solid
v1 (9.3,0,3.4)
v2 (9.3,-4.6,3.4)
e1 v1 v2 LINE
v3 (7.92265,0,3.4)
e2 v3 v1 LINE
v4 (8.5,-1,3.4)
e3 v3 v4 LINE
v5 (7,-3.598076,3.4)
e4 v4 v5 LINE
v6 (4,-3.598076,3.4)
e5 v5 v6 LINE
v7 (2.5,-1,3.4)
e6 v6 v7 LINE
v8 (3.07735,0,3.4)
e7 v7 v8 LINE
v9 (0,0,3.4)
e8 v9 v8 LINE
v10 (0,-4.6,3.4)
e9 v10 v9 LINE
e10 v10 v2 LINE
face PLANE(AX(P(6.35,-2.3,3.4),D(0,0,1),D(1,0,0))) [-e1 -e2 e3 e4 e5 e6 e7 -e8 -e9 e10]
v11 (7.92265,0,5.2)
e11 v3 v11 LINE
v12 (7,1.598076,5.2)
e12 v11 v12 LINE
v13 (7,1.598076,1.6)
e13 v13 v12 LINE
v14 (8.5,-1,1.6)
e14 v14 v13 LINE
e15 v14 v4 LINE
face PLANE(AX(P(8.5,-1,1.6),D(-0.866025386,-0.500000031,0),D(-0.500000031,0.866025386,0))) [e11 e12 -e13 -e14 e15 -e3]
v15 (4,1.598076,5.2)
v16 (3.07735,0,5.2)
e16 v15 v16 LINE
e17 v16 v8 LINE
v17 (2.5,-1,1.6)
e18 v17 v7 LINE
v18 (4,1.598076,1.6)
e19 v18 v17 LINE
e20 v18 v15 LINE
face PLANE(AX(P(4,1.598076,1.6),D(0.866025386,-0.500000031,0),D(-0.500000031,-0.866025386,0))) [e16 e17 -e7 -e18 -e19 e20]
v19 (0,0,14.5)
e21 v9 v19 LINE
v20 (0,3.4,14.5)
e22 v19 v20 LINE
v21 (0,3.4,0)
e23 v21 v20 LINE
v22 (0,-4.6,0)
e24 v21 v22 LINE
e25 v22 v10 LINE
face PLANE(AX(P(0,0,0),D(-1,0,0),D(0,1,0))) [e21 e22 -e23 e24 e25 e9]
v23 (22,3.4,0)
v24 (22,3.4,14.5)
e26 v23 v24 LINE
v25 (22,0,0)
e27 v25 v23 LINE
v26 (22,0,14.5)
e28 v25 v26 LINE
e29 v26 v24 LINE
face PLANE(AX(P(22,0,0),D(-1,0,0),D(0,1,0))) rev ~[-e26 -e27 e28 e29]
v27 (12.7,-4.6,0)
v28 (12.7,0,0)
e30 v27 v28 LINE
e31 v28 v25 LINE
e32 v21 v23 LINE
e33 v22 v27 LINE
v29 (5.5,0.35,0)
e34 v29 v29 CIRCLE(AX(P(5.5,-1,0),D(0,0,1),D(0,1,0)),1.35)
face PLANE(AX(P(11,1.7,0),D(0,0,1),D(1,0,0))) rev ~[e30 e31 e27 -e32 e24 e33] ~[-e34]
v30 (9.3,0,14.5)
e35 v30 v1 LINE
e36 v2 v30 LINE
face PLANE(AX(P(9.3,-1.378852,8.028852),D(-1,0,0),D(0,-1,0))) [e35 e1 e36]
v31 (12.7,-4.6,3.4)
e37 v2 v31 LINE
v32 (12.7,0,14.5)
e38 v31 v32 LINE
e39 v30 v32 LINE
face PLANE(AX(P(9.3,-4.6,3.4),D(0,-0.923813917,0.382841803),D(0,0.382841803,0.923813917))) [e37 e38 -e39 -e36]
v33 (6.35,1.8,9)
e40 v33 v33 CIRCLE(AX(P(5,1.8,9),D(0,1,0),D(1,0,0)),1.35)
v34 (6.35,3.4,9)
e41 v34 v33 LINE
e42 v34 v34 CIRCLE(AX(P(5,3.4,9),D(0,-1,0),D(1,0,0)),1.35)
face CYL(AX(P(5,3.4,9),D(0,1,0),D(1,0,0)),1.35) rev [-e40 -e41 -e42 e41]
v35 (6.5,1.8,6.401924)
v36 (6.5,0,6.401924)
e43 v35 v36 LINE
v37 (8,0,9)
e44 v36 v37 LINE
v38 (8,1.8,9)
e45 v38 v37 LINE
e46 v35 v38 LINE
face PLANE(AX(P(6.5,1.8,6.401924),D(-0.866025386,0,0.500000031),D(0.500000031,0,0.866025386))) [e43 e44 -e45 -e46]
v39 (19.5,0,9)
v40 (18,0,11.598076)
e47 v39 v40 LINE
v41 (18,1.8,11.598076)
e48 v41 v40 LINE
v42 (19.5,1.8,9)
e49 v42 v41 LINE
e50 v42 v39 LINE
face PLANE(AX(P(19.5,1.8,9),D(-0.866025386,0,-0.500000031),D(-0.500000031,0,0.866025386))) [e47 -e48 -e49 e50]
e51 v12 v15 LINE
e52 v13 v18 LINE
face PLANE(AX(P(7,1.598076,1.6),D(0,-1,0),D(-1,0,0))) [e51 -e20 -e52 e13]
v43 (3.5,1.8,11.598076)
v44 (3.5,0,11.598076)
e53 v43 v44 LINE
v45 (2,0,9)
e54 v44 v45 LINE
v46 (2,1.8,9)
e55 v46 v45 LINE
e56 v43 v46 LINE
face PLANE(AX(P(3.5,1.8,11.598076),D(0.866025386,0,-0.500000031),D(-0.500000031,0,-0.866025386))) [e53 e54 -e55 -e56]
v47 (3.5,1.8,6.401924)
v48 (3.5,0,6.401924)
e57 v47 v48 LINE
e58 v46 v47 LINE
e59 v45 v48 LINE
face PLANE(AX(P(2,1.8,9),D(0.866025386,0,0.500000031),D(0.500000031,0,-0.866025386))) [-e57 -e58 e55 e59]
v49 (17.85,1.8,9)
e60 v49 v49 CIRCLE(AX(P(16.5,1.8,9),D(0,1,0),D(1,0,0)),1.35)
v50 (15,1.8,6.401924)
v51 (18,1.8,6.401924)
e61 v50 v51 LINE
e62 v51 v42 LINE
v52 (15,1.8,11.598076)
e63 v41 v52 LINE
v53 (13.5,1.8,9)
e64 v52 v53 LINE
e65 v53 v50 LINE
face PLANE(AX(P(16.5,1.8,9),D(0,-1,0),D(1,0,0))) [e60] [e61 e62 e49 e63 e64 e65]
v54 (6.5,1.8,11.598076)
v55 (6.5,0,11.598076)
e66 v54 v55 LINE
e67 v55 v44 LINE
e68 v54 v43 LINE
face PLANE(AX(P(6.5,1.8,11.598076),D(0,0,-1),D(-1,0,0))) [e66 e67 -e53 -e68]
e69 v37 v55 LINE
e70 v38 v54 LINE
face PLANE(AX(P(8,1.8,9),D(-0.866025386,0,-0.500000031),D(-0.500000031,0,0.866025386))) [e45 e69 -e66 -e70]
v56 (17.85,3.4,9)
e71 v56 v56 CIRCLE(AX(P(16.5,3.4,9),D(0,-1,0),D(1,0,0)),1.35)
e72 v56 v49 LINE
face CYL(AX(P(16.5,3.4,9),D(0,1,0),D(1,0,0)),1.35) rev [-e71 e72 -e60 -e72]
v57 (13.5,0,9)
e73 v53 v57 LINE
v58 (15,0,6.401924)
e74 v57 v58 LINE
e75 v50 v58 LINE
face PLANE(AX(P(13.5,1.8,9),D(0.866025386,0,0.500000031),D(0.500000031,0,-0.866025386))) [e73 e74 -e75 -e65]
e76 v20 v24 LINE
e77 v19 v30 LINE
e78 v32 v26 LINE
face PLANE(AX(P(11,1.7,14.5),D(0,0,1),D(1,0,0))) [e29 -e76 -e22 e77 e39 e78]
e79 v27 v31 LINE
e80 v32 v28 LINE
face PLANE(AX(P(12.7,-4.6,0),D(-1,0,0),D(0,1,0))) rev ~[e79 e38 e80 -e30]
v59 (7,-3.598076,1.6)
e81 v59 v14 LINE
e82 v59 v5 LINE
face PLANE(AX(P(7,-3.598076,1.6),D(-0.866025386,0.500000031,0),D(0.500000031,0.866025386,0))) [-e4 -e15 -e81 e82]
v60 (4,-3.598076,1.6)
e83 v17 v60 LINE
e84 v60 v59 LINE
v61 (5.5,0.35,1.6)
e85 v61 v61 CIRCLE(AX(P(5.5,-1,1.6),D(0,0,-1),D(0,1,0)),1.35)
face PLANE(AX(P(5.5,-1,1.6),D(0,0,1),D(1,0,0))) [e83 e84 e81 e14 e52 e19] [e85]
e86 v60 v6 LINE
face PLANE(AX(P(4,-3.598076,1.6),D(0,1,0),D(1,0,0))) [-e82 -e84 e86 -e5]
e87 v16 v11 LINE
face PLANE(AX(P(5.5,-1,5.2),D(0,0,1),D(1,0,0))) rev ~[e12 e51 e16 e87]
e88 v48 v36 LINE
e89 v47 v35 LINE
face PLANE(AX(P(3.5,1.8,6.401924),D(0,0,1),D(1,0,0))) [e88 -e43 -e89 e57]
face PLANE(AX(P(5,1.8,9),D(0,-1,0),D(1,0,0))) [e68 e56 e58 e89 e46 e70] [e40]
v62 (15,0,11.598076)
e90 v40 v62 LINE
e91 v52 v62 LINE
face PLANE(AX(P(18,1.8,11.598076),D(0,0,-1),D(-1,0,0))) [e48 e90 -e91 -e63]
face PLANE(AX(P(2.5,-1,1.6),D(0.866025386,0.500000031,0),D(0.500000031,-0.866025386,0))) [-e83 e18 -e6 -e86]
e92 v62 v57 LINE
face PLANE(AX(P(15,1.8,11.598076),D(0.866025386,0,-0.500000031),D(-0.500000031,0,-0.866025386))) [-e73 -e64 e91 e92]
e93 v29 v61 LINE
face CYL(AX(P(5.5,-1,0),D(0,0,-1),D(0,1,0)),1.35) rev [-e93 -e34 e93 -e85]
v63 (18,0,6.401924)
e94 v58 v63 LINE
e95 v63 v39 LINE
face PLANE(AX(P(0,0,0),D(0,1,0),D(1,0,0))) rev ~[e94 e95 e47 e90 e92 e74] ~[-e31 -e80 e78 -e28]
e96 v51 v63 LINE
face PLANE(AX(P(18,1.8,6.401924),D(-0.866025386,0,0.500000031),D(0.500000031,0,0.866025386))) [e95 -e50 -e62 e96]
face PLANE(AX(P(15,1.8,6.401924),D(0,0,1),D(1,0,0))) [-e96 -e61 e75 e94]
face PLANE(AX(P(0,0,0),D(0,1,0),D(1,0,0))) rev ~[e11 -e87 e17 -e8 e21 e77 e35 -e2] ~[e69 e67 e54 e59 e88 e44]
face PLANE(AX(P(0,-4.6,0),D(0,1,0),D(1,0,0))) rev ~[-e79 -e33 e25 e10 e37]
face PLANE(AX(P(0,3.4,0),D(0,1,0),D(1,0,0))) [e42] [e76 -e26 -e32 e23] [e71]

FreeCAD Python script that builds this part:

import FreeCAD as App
import Part
import Sketcher

V = App.Vector
Q = App.Units.Quantity


def add_polygon(sketch, points):
    """Adds a closed chain of lines whose ends are joined by coincident constraints."""
    first, n = sketch.GeometryCount, len(points)
    for a, b in zip(points, points[1:] + points[:1]):
        sketch.addGeometry(Part.LineSegment(App.Vector(*a, 0), App.Vector(*b, 0)), False)
    for i in range(n):
        sketch.addConstraint(Sketcher.Constraint("Coincident", first + i, 2, first + (i + 1) % n, 1))

doc = App.newDocument("Part")
params = doc.addObject("Spreadsheet::Sheet", "Params")
for row, (alias, value) in enumerate([
    ("sketch1_width", "3 mm"),
    ("sketch1_length", "3 mm"),
    ("pad1_length", "3.6 mm"),
    ("sketch2_diameter", "2.7 mm"),
    ("pad2_length", "3.4 mm"),
    ("sketch3_width", "3 mm"),
    ("sketch3_length", "3 mm"),
    ("pad3_length", "1.8 mm"),
    ("sketch4_diameter", "2.7 mm"),
    ("pad4_length", "3.4 mm"),
    ("sketch5_width", "3 mm"),
    ("sketch5_length", "3 mm"),
    ("pad5_length", "1.8 mm"),
    ("sketch6_diameter", "2.7 mm"),
    ("pad6_length", "3.4 mm"),
    ("sketch7_width", "22 mm"),
    ("sketch7_height", "3.4 mm"),
    ("pad7_length", "14.5 mm"),
    ("sketch8_width", "12.7 mm"),
    ("sketch8_height", "4.6 mm"),
    ("pad8_length", "3.4 mm"),
    ("sketch9_width", "4.6 mm"),
    ("sketch9_height", "11.1 mm"),
    ("pad9_length", "3.4 mm"),
], start=1):
    params.set(f"A{row}", alias)
    params.set(f"B{row}", "=" + value)
    params.setAlias(f"B{row}", alias)

body = doc.addObject("PartDesign::Body", "Body")

# Sketch on XY plane
sketch1 = body.newObject("Sketcher::SketchObject", "Sketch")
sketch1.AttachmentSupport = (doc.getObject("XY_Plane"), [""])
sketch1.MapMode = "FlatFace"
sketch1.AttachmentOffset = App.Placement(V(0, 0, 1.6), App.Rotation())
add_polygon(sketch1, [(8.5, -1), (7, 1.598076), (4, 1.598076), (2.5, -1), (4, -3.598076), (7, -3.598076)])  # lines 0-5
sketch1.addConstraint([
    Sketcher.Constraint("Horizontal", 1),
    Sketcher.Constraint("Horizontal", 4),
    Sketcher.Constraint("Parallel", 0, 3),
    Sketcher.Constraint("Parallel", 2, 5),
    Sketcher.Constraint("Horizontal", 2, 2, 5, 2),
    Sketcher.Constraint("Vertical", 1, 2, 3, 2),
    Sketcher.Constraint("Vertical", 0, 2, 4, 2),
    Sketcher.Constraint("DistanceX", 1, 2, 1, 1, 3.0),
    Sketcher.Constraint("Angle", 0, Q("120.000002 deg")),
    Sketcher.Constraint("Distance", 0, 3.0),
    Sketcher.Constraint("DistanceX", -1, 1, 0, 2, 7.0),
    Sketcher.Constraint("DistanceY", 2, 2, -1, 1, 1.0),
])
sketch1.setExpression("Constraints[13]", "Params.sketch1_width")
sketch1.setExpression("Constraints[15]", "Params.sketch1_length")
pad1 = body.newObject("PartDesign::Pad", "Pad")
pad1.Profile = sketch1
pad1.setExpression("Length", "Params.pad1_length")
body2 = doc.addObject("PartDesign::Body", "Body001")

# Sketch on XY plane
sketch2 = body2.newObject("Sketcher::SketchObject", "Sketch001")
sketch2.AttachmentSupport = (doc.getObject("XY_Plane001"), [""])
sketch2.MapMode = "FlatFace"
sketch2.addGeometry(Part.Circle(V(5.5, -1, 0), V(0, 0, 1), 1.35), False)
sketch2.addConstraint([
    Sketcher.Constraint("Diameter", 0, 2.7),
    Sketcher.Constraint("DistanceY", 0, 3, -1, 1, 1.0),
    Sketcher.Constraint("DistanceX", -1, 1, 0, 3, 5.5),
])
sketch2.setExpression("Constraints[0]", "Params.sketch2_diameter")
pad2 = body2.newObject("PartDesign::Pad", "Pad001")
pad2.Profile = sketch2
pad2.setExpression("Length", "Params.pad2_length")
doc.recompute()

boolean = body2.newObject("PartDesign::Boolean", "Boolean")
boolean.Type = "Fuse"
boolean.addObjects([body])
body3 = doc.addObject("PartDesign::Body", "Body002")

# Sketch on XZ plane
sketch3 = body3.newObject("Sketcher::SketchObject", "Sketch002")
sketch3.AttachmentSupport = (doc.getObject("XZ_Plane002"), [""])
sketch3.MapMode = "FlatFace"
sketch3.AttachmentOffset = App.Placement(V(0, 0, -1.8), App.Rotation())
add_polygon(sketch3, [(19.5, 9), (18, 11.598076), (15, 11.598076), (13.5, 9), (15, 6.401924), (18, 6.401924)])  # lines 0-5
sketch3.addConstraint([
    Sketcher.Constraint("Horizontal", 1),
    Sketcher.Constraint("Horizontal", 4),
    Sketcher.Constraint("Parallel", 0, 3),
    Sketcher.Constraint("Parallel", 2, 5),
    Sketcher.Constraint("Horizontal", 2, 2, 5, 2),
    Sketcher.Constraint("Vertical", 1, 2, 3, 2),
    Sketcher.Constraint("Vertical", 0, 2, 4, 2),
    Sketcher.Constraint("DistanceX", 1, 2, 1, 1, 3.0),
    Sketcher.Constraint("Angle", 0, Q("120.000002 deg")),
    Sketcher.Constraint("Distance", 0, 3.0),
    Sketcher.Constraint("DistanceX", -1, 1, 0, 2, 18.0),
    Sketcher.Constraint("DistanceY", -1, 1, 2, 2, 9.0),
])
sketch3.setExpression("Constraints[13]", "Params.sketch3_width")
sketch3.setExpression("Constraints[15]", "Params.sketch3_length")
pad3 = body3.newObject("PartDesign::Pad", "Pad002")
pad3.Profile = sketch3
pad3.setExpression("Length", "Params.pad3_length")
body4 = doc.addObject("PartDesign::Body", "Body003")

# Sketch on XZ plane
sketch4 = body4.newObject("Sketcher::SketchObject", "Sketch003")
sketch4.AttachmentSupport = (doc.getObject("XZ_Plane003"), [""])
sketch4.MapMode = "FlatFace"
sketch4.AttachmentOffset = App.Placement(V(0, 0, -3.4), App.Rotation())
sketch4.addGeometry(Part.Circle(V(16.5, 9, 0), V(0, 0, 1), 1.35), False)
sketch4.addConstraint([
    Sketcher.Constraint("Diameter", 0, 2.7),
    Sketcher.Constraint("DistanceY", -1, 1, 0, 3, 9.0),
    Sketcher.Constraint("DistanceX", -1, 1, 0, 3, 16.5),
])
sketch4.setExpression("Constraints[0]", "Params.sketch4_diameter")
pad4 = body4.newObject("PartDesign::Pad", "Pad003")
pad4.Profile = sketch4
pad4.setExpression("Length", "Params.pad4_length")
doc.recompute()

boolean2 = body4.newObject("PartDesign::Boolean", "Boolean001")
boolean2.Type = "Fuse"
boolean2.addObjects([body3])
body5 = doc.addObject("PartDesign::Body", "Body004")

# Sketch on XZ plane
sketch5 = body5.newObject("Sketcher::SketchObject", "Sketch004")
sketch5.AttachmentSupport = (doc.getObject("XZ_Plane004"), [""])
sketch5.MapMode = "FlatFace"
sketch5.AttachmentOffset = App.Placement(V(0, 0, -1.8), App.Rotation())
add_polygon(sketch5, [(8, 9), (6.5, 11.598076), (3.5, 11.598076), (2, 9), (3.5, 6.401924), (6.5, 6.401924)])  # lines 0-5
sketch5.addConstraint([
    Sketcher.Constraint("Horizontal", 1),
    Sketcher.Constraint("Horizontal", 4),
    Sketcher.Constraint("Parallel", 0, 3),
    Sketcher.Constraint("Parallel", 2, 5),
    Sketcher.Constraint("Horizontal", 2, 2, 5, 2),
    Sketcher.Constraint("Vertical", 1, 2, 3, 2),
    Sketcher.Constraint("Vertical", 0, 2, 4, 2),
    Sketcher.Constraint("DistanceX", 1, 2, 1, 1, 3.0),
    Sketcher.Constraint("Angle", 0, Q("120.000002 deg")),
    Sketcher.Constraint("Distance", 0, 3.0),
    Sketcher.Constraint("DistanceX", -1, 1, 2, 2, 2.0),
    Sketcher.Constraint("DistanceY", -1, 1, 2, 2, 9.0),
])
sketch5.setExpression("Constraints[13]", "Params.sketch5_width")
sketch5.setExpression("Constraints[15]", "Params.sketch5_length")
pad5 = body5.newObject("PartDesign::Pad", "Pad004")
pad5.Profile = sketch5
pad5.setExpression("Length", "Params.pad5_length")
body6 = doc.addObject("PartDesign::Body", "Body005")

# Sketch on XZ plane
sketch6 = body6.newObject("Sketcher::SketchObject", "Sketch005")
sketch6.AttachmentSupport = (doc.getObject("XZ_Plane005"), [""])
sketch6.MapMode = "FlatFace"
sketch6.AttachmentOffset = App.Placement(V(0, 0, -3.4), App.Rotation())
sketch6.addGeometry(Part.Circle(V(5, 9, 0), V(0, 0, 1), 1.35), False)
sketch6.addConstraint([
    Sketcher.Constraint("Diameter", 0, 2.7),
    Sketcher.Constraint("DistanceX", -1, 1, 0, 3, 5.0),
    Sketcher.Constraint("DistanceY", -1, 1, 0, 3, 9.0),
])
sketch6.setExpression("Constraints[0]", "Params.sketch6_diameter")
pad6 = body6.newObject("PartDesign::Pad", "Pad005")
pad6.Profile = sketch6
pad6.setExpression("Length", "Params.pad6_length")
doc.recompute()

boolean3 = body6.newObject("PartDesign::Boolean", "Boolean002")
boolean3.Type = "Fuse"
boolean3.addObjects([body5])
body7 = doc.addObject("PartDesign::Body", "Body006")

# Sketch on XY plane
sketch7 = body7.newObject("Sketcher::SketchObject", "Sketch006")
sketch7.AttachmentSupport = (doc.getObject("XY_Plane006"), [""])
sketch7.MapMode = "FlatFace"
add_polygon(sketch7, [(0, 3.4), (0, 0), (22, 0), (22, 3.4)])  # lines 0-3
sketch7.addConstraint([
    Sketcher.Constraint("Vertical", 0),
    Sketcher.Constraint("Horizontal", 1),
    Sketcher.Constraint("Vertical", 2),
    Sketcher.Constraint("Horizontal", 3),
    Sketcher.Constraint("Coincident", 0, 2, -1, 1),
    Sketcher.Constraint("DistanceX", 1, 1, 1, 2, 22.0),
    Sketcher.Constraint("DistanceY", 0, 2, 0, 1, 3.4),
])
sketch7.setExpression("Constraints[9]", "Params.sketch7_width")
sketch7.setExpression("Constraints[10]", "Params.sketch7_height")
pad7 = body7.newObject("PartDesign::Pad", "Pad006")
pad7.Profile = sketch7
pad7.setExpression("Length", "Params.pad7_length")
doc.recompute()

boolean4 = body7.newObject("PartDesign::Boolean", "Boolean003")
boolean4.Type = "Cut"
boolean4.addObjects([body6])
doc.recompute()

boolean5 = body7.newObject("PartDesign::Boolean", "Boolean004")
boolean5.Type = "Cut"
boolean5.addObjects([body4])
body8 = doc.addObject("PartDesign::Body", "Body007")

# Sketch on XY plane
sketch8 = body8.newObject("Sketcher::SketchObject", "Sketch007")
sketch8.AttachmentSupport = (doc.getObject("XY_Plane007"), [""])
sketch8.MapMode = "FlatFace"
add_polygon(sketch8, [(0, 0), (0, -4.6), (12.7, -4.6), (12.7, 0)])  # lines 0-3
sketch8.addConstraint([
    Sketcher.Constraint("Vertical", 0),
    Sketcher.Constraint("Horizontal", 1),
    Sketcher.Constraint("Vertical", 2),
    Sketcher.Constraint("Horizontal", 3),
    Sketcher.Constraint("Coincident", 3, 2, -1, 1),
    Sketcher.Constraint("DistanceX", 1, 1, 1, 2, 12.7),
    Sketcher.Constraint("DistanceY", 0, 2, 0, 1, 4.6),
])
sketch8.setExpression("Constraints[9]", "Params.sketch8_width")
sketch8.setExpression("Constraints[10]", "Params.sketch8_height")
pad8 = body8.newObject("PartDesign::Pad", "Pad007")
pad8.Profile = sketch8
pad8.setExpression("Length", "Params.pad8_length")
doc.recompute()

boolean6 = body8.newObject("PartDesign::Boolean", "Boolean005")
boolean6.Type = "Fuse"
boolean6.addObjects([body7])
doc.recompute()

boolean7 = body8.newObject("PartDesign::Boolean", "Boolean006")
boolean7.Type = "Cut"
boolean7.addObjects([body2])
body9 = doc.addObject("PartDesign::Body", "Body008")

# Sketch on YZ plane
sketch9 = body9.newObject("Sketcher::SketchObject", "Sketch008")
sketch9.AttachmentSupport = (doc.getObject("YZ_Plane008"), [""])
sketch9.MapMode = "FlatFace"
add_polygon(sketch9, [(0, 3.4), (0, 14.5), (-4.6, 3.4)])  # lines 0-2
sketch9.addConstraint([
    Sketcher.Constraint("Vertical", 0),
    Sketcher.Constraint("Horizontal", 2),
    Sketcher.Constraint("PointOnObject", 0, 2, -2),
    Sketcher.Constraint("DistanceX", 2, 1, 2, 2, 4.6),
    Sketcher.Constraint("DistanceY", 0, 1, 0, 2, 11.1),
    Sketcher.Constraint("DistanceY", -1, 1, 0, 2, 14.5),
])
sketch9.setExpression("Constraints[6]", "Params.sketch9_width")
sketch9.setExpression("Constraints[7]", "Params.sketch9_height")
pad9 = body9.newObject("PartDesign::Pad", "Pad008")
pad9.Profile = sketch9
pad9.setExpression("Length", "Params.pad9_length")
body10 = doc.addObject("PartDesign::Body", "Body009")
doc.recompute()

body9.Placement = App.Placement(V(9.3, 0, 0), App.Rotation(V(0, 0, 1), 0))
boolean8 = body10.newObject("PartDesign::Boolean", "Boolean007")
boolean8.Type = "Fuse"
boolean8.addObjects([body9])
doc.recompute()

boolean9 = body10.newObject("PartDesign::Boolean", "Boolean008")
boolean9.Type = "Fuse"
boolean9.addObjects([body8])

doc.recompute()
